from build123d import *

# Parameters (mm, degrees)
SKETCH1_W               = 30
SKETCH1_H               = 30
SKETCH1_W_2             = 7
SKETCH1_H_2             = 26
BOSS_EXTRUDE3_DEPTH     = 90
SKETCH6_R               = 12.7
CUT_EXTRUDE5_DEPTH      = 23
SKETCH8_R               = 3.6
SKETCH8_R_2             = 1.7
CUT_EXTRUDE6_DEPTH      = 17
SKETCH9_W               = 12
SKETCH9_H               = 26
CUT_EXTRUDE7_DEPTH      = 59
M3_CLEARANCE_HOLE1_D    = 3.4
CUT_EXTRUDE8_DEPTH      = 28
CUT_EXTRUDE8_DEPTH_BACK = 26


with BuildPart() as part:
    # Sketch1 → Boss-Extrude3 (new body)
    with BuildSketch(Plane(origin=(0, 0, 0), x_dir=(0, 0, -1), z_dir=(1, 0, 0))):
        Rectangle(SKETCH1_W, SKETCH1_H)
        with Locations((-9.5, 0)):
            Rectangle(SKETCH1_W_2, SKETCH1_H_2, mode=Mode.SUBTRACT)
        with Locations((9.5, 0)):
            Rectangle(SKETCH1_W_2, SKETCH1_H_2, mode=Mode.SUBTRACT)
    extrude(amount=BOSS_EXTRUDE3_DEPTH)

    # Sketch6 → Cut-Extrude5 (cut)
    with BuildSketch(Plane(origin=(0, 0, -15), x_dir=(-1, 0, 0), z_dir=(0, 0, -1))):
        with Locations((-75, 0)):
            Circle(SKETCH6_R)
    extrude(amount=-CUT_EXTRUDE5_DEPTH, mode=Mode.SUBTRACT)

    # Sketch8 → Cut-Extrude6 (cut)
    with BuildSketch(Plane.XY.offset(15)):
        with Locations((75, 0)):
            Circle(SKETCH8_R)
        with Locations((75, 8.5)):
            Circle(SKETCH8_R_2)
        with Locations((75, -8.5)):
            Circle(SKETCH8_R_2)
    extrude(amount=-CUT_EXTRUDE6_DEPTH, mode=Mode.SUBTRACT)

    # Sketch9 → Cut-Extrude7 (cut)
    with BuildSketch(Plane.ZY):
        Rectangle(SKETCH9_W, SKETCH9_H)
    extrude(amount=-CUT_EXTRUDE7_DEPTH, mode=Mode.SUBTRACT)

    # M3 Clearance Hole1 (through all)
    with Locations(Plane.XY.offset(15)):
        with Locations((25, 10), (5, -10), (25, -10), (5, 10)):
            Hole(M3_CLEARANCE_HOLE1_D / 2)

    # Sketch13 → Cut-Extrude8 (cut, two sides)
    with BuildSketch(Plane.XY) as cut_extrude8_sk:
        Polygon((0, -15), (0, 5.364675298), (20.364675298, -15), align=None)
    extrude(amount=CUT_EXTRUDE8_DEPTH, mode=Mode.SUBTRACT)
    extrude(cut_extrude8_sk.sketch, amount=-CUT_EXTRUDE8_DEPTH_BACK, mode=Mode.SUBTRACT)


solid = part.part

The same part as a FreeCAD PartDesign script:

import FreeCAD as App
import Part
import Sketcher
from FreeCAD import Vector
Q = App.Units.Quantity


def add_polygon(sketch, points):
    """Adds a closed chain of lines whose ends are joined by coincident constraints."""
    first, n = sketch.GeometryCount, len(points)
    for a, b in zip(points, points[1:] + points[:1]):
        sketch.addGeometry(Part.LineSegment(App.Vector(*a, 0), App.Vector(*b, 0)), False)
    for i in range(n):
        sketch.addConstraint(Sketcher.Constraint("Coincident", first + i, 2, first + (i + 1) % n, 1))

doc = App.newDocument("Part")
body = doc.addObject("PartDesign::Body", "Body")

# Sketch on YZ plane
sketch1 = body.newObject("Sketcher::SketchObject", "Sketch")
sketch1.AttachmentSupport = (doc.getObject("YZ_Plane"), [""])
sketch1.MapMode = "FlatFace"
add_polygon(sketch1, [(15, 15), (-15, 15), (-15, -15), (15, -15)])  # lines 0-3
add_polygon(sketch1, [(-13, 6), (-13, 13), (13, 13), (13, 6)])  # lines 4-7
add_polygon(sketch1, [(-13, -13), (-13, -6), (13, -6), (13, -13)])  # lines 8-11
sketch1.addConstraint(Sketcher.Constraint("Horizontal", 0))
sketch1.addConstraint(Sketcher.Constraint("Vertical", 1))
sketch1.addConstraint(Sketcher.Constraint("Horizontal", 2))
sketch1.addConstraint(Sketcher.Constraint("Vertical", 3))
sketch1.addConstraint(Sketcher.Constraint("Vertical", 4))
sketch1.addConstraint(Sketcher.Constraint("Horizontal", 5))
sketch1.addConstraint(Sketcher.Constraint("Vertical", 6))
sketch1.addConstraint(Sketcher.Constraint("Horizontal", 7))
sketch1.addConstraint(Sketcher.Constraint("Vertical", 8))
sketch1.addConstraint(Sketcher.Constraint("Horizontal", 9))
sketch1.addConstraint(Sketcher.Constraint("Vertical", 10))
sketch1.addConstraint(Sketcher.Constraint("Horizontal", 11))
sketch1.addConstraint(Sketcher.Constraint("Symmetric", 0, 2, 2, 2, -1, 1))
sketch1.addConstraint(Sketcher.Constraint("Symmetric", 6, 2, 8, 2, -1, 1))
sketch1.addConstraint(Sketcher.Constraint("Symmetric", 4, 2, 10, 2, -1, 1))
sketch1.addConstraint(Sketcher.Constraint("Vertical", 7, 2, 8, 2))
sketch1.addConstraint(Sketcher.Constraint("Equal", 2, 1))
sketch1.addConstraint(Sketcher.Constraint("DistanceX", 0, 2, 0, 1, Q("30 mm")))
sketch1.addConstraint(Sketcher.Constraint("DistanceX", 5, 1, 5, 2, Q("26 mm")))
sketch1.addConstraint(Sketcher.Constraint("DistanceY", 4, 1, 4, 2, Q("7 mm")))
sketch1.addConstraint(Sketcher.Constraint("DistanceY", -1, 1, 4, 2, Q("13 mm")))
pad1 = body.newObject("PartDesign::Pad", "Pad")
pad1.Profile = sketch1
pad1.Length = 90

# Sketch on XY plane
sketch2 = body.newObject("Sketcher::SketchObject", "Sketch001")
sketch2.AttachmentSupport = (doc.getObject("XY_Plane"), [""])
sketch2.MapMode = "FlatFace"
sketch2.AttachmentOffset = App.Placement(Vector(0, 0, -15), App.Rotation())
sketch2.addGeometry(Part.Circle(Vector(75, 0, 0), Vector(0, 0, 1), 13), False)
sketch2.addConstraint(Sketcher.Constraint("PointOnObject", 0, 3, -1))
sketch2.addConstraint(Sketcher.Constraint("Diameter", 0, Q("25.4 mm")))
sketch2.addConstraint(Sketcher.Constraint("DistanceX", -1, 1, 0, 3, Q("75 mm")))
pocket1 = body.newObject("PartDesign::Pocket", "Pocket")
pocket1.Profile = sketch2
pocket1.Length = 23
pocket1.Reversed = True

# Sketch on XY plane
sketch3 = body.newObject("Sketcher::SketchObject", "Sketch002")
sketch3.AttachmentSupport = (doc.getObject("XY_Plane"), [""])
sketch3.MapMode = "FlatFace"
sketch3.AttachmentOffset = App.Placement(Vector(0, 0, 15), App.Rotation())
sketch3.addGeometry(Part.Circle(Vector(75, 0, 0), Vector(0, 0, 1), 3.6), False)
sketch3.addGeometry(Part.Circle(Vector(75, 8.5, 0), Vector(0, 0, 1), 1.7), False)
sketch3.addGeometry(Part.Circle(Vector(75, -8.5, 0), Vector(0, 0, 1), 1.7), False)
sketch3.addConstraint(Sketcher.Constraint("Equal", 1, 2))
sketch3.addConstraint(Sketcher.Constraint("Symmetric", 1, 3, 2, 3, -1))
sketch3.addConstraint(Sketcher.Constraint("PointOnObject", 0, 3, -1))
sketch3.addConstraint(Sketcher.Constraint("Vertical", 0, 3, 1, 3))
sketch3.addConstraint(Sketcher.Constraint("Diameter", 0, Q("7.2 mm")))
sketch3.addConstraint(Sketcher.Constraint("Diameter", 1, Q("3.4 mm")))
sketch3.addConstraint(Sketcher.Constraint("DistanceX", -1, 1, 0, 3, Q("75 mm")))
sketch3.addConstraint(Sketcher.Constraint("DistanceY", 2, 3, 1, 3, Q("17 mm")))
pocket2 = body.newObject("PartDesign::Pocket", "Pocket001")
pocket2.Profile = sketch3
pocket2.Length = 17

# Sketch on YZ plane
sketch4 = body.newObject("Sketcher::SketchObject", "Sketch003")
sketch4.AttachmentSupport = (doc.getObject("YZ_Plane"), [""])
sketch4.MapMode = "FlatFace"
add_polygon(sketch4, [(13, -6), (-13, -6), (-13, 6), (13, 6)])  # lines 0-3
sketch4.addConstraint(Sketcher.Constraint("Horizontal", 0))
sketch4.addConstraint(Sketcher.Constraint("Vertical", 1))
sketch4.addConstraint(Sketcher.Constraint("Horizontal", 2))
sketch4.addConstraint(Sketcher.Constraint("Vertical", 3))
sketch4.addConstraint(Sketcher.Constraint("Symmetric", 0, 2, 2, 2, -1, 1))
sketch4.addConstraint(Sketcher.Constraint("DistanceX", 0, 2, 0, 1, Q("26 mm")))
sketch4.addConstraint(Sketcher.Constraint("DistanceY", 1, 1, 1, 2, Q("12 mm")))
pocket3 = body.newObject("PartDesign::Pocket", "Pocket002")
pocket3.Profile = sketch4
pocket3.Length = 59
pocket3.Reversed = True

# Sketch on XY plane
sketch5 = body.newObject("Sketcher::SketchObject", "Sketch004")
sketch5.AttachmentSupport = (doc.getObject("XY_Plane"), [""])
sketch5.MapMode = "FlatFace"
sketch5.AttachmentOffset = App.Placement(Vector(0, 0, 15), App.Rotation())
sketch5.addGeometry(Part.Circle(Vector(25, 10, 0), Vector(0, 0, 1), 1.7), False)
sketch5.addGeometry(Part.Circle(Vector(5, -10, 0), Vector(0, 0, 1), 1.7), False)
sketch5.addGeometry(Part.Circle(Vector(25, -10, 0), Vector(0, 0, 1), 1.7), False)
sketch5.addGeometry(Part.Circle(Vector(5, 10, 0), Vector(0, 0, 1), 1.7), False)
sketch5.addConstraint(Sketcher.Constraint("Equal", 0, 1))
sketch5.addConstraint(Sketcher.Constraint("Equal", 1, 2))
sketch5.addConstraint(Sketcher.Constraint("Equal", 2, 3))
sketch5.addConstraint(Sketcher.Constraint("Symmetric", 0, 3, 2, 3, -1))
sketch5.addConstraint(Sketcher.Constraint("Symmetric", 1, 3, 3, 3, -1))
sketch5.addConstraint(Sketcher.Constraint("Horizontal", 1, 3, 2, 3))
sketch5.addConstraint(Sketcher.Constraint("Diameter", 0, Q("3.4 mm")))
sketch5.addConstraint(Sketcher.Constraint("DistanceX", -1, 1, 0, 3, Q("25 mm")))
sketch5.addConstraint(Sketcher.Constraint("DistanceY", -1, 1, 0, 3, Q("10 mm")))
sketch5.addConstraint(Sketcher.Constraint("DistanceX", -1, 1, 1, 3, Q("5 mm")))
doc.recompute()
hole = body.newObject("PartDesign::Hole", "Hole")
hole.Profile = sketch5
hole.ThreadType = "None"
hole.Diameter = 3.4
hole.DepthType = "ThroughAll"

# Sketch on XY plane
sketch6 = body.newObject("Sketcher::SketchObject", "Sketch005")
sketch6.AttachmentSupport = (doc.getObject("XY_Plane"), [""])
sketch6.MapMode = "FlatFace"
add_polygon(sketch6, [(0, 5), (0, -15), (20, -15)])  # lines 0-2
sketch6.addConstraint(Sketcher.Constraint("Vertical", 0))
sketch6.addConstraint(Sketcher.Constraint("Horizontal", 1))
sketch6.addConstraint(Sketcher.Constraint("PointOnObject", 0, 2, -2))
sketch6.addConstraint(Sketcher.Constraint("Equal", 1, 0))
sketch6.addConstraint(Sketcher.Constraint("DistanceY", 0, 2, -1, 1, Q("15 mm")))
sketch6.addConstraint(Sketcher.Constraint("Distance", 2, Q("28.8 mm")))
pocket4 = body.newObject("PartDesign::Pocket", "Pocket003")
pocket4.Profile = sketch6
pocket4.Type = "ThroughAll"
pocket4.Midplane = True

doc.recompute()
